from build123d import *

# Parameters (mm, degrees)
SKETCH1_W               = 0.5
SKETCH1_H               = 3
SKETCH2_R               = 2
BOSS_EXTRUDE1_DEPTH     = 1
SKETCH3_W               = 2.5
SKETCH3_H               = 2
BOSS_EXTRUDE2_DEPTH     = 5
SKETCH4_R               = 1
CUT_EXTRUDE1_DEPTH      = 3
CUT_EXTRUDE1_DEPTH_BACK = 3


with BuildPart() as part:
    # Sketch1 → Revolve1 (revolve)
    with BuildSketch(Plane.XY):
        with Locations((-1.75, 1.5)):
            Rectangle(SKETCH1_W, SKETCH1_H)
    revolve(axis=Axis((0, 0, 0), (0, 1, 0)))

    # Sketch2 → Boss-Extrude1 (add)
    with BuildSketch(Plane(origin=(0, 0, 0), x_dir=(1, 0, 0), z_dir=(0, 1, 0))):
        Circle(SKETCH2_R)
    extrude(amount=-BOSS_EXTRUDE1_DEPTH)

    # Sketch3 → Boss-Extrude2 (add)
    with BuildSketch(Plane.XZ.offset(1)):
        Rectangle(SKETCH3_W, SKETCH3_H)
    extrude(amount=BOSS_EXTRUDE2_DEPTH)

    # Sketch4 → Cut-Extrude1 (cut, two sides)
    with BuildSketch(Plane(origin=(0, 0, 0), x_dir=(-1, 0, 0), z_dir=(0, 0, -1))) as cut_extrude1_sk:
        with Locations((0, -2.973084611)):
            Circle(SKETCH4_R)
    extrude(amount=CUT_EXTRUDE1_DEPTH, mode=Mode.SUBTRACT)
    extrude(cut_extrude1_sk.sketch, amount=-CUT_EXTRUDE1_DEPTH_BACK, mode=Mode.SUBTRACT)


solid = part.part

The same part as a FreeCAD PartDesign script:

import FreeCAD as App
import Part
import Sketcher

V = App.Vector


def add_polygon(sketch, points):
    """Adds a closed chain of lines whose ends are joined by coincident constraints."""
    first, n = sketch.GeometryCount, len(points)
    for a, b in zip(points, points[1:] + points[:1]):
        sketch.addGeometry(Part.LineSegment(App.Vector(*a, 0), App.Vector(*b, 0)), False)
    for i in range(n):
        sketch.addConstraint(Sketcher.Constraint("Coincident", first + i, 2, first + (i + 1) % n, 1))

doc = App.newDocument("Part")
params = doc.addObject("Spreadsheet::Sheet", "Params")
for row, (alias, value) in enumerate([
    ("sketch1_height", "3 mm"),
    ("sketch1_width", "0.5 mm"),
    ("revolution_angle", "360 deg"),
    ("sketch2_diameter", "4 mm"),
    ("pad1_length", "1 mm"),
    ("sketch3_height", "2 mm"),
    ("sketch3_width", "2.5 mm"),
    ("pad2_length", "5 mm"),
    ("sketch4_diameter", "2 mm"),
], start=1):
    params.set(f"A{row}", alias)
    params.set(f"B{row}", "=" + value)
    params.setAlias(f"B{row}", alias)

body = doc.addObject("PartDesign::Body", "Body")

# Sketch on XY plane
sketch1 = body.newObject("Sketcher::SketchObject", "Sketch")
sketch1.AttachmentSupport = (doc.getObject("XY_Plane"), [""])
sketch1.MapMode = "FlatFace"
add_polygon(sketch1, [(-2, 3), (-2, 0), (-1.5, 0), (-1.5, 3)])  # lines 0-3
sketch1.addConstraint(Sketcher.Constraint("Vertical", 0))
sketch1.addConstraint(Sketcher.Constraint("Horizontal", 1))
sketch1.addConstraint(Sketcher.Constraint("Vertical", 2))
sketch1.addConstraint(Sketcher.Constraint("Horizontal", 3))
sketch1.addConstraint(Sketcher.Constraint("PointOnObject", 0, 2, -1))
sketch1.addConstraint(Sketcher.Constraint("DistanceY", 0, 2, 0, 1, 3.0))
sketch1.addConstraint(Sketcher.Constraint("DistanceX", 1, 1, 1, 2, 0.5))
sketch1.addConstraint(Sketcher.Constraint("DistanceX", 0, 2, -1, 1, 2.0))
sketch1.setExpression("Constraints[9]", "Params.sketch1_height")
sketch1.setExpression("Constraints[10]", "Params.sketch1_width")
revolution = body.newObject("PartDesign::Revolution", "Revolution")
revolution.Profile = sketch1
revolution.ReferenceAxis = (sketch1, ["V_Axis"])
revolution.setExpression("Angle", "Params.revolution_angle")

# Sketch on XZ plane
sketch2 = body.newObject("Sketcher::SketchObject", "Sketch001")
sketch2.AttachmentSupport = (doc.getObject("XZ_Plane"), [""])
sketch2.MapMode = "FlatFace"
sketch2.addGeometry(Part.Circle(V(0, 0, 0), V(0, 0, 1), 2), False)
sketch2.addConstraint(Sketcher.Constraint("Coincident", 0, 3, -1, 1))
sketch2.addConstraint(Sketcher.Constraint("Diameter", 0, 4.0))
sketch2.setExpression("Constraints[1]", "Params.sketch2_diameter")
pad1 = body.newObject("PartDesign::Pad", "Pad")
pad1.Profile = sketch2
pad1.setExpression("Length", "Params.pad1_length")

# Sketch on XZ plane
sketch3 = body.newObject("Sketcher::SketchObject", "Sketch002")
sketch3.AttachmentSupport = (doc.getObject("XZ_Plane"), [""])
sketch3.MapMode = "FlatFace"
sketch3.AttachmentOffset = App.Placement(V(0, 0, 1), App.Rotation())
add_polygon(sketch3, [(-1.25, 1), (-1.25, -1), (1.25, -1), (1.25, 1)])  # lines 0-3
sketch3.addConstraint(Sketcher.Constraint("Vertical", 0))
sketch3.addConstraint(Sketcher.Constraint("Horizontal", 1))
sketch3.addConstraint(Sketcher.Constraint("Vertical", 2))
sketch3.addConstraint(Sketcher.Constraint("Horizontal", 3))
sketch3.addConstraint(Sketcher.Constraint("Symmetric", 0, 2, 2, 2, -1, 1))
sketch3.addConstraint(Sketcher.Constraint("DistanceY", 0, 2, 0, 1, 2.0))
sketch3.addConstraint(Sketcher.Constraint("DistanceX", 1, 1, 1, 2, 2.5))
sketch3.setExpression("Constraints[9]", "Params.sketch3_height")
sketch3.setExpression("Constraints[10]", "Params.sketch3_width")
pad2 = body.newObject("PartDesign::Pad", "Pad001")
pad2.Profile = sketch3
pad2.setExpression("Length", "Params.pad2_length")

# Sketch on XY plane
sketch4 = body.newObject("Sketcher::SketchObject", "Sketch003")
sketch4.AttachmentSupport = (doc.getObject("XY_Plane"), [""])
sketch4.MapMode = "FlatFace"
sketch4.addGeometry(Part.Circle(V(0, -2.973085, 0), V(0, 0, 1), 1), False)
sketch4.addConstraint(Sketcher.Constraint("PointOnObject", 0, 3, -2))
sketch4.addConstraint(Sketcher.Constraint("Diameter", 0, 2.0))
sketch4.addConstraint(Sketcher.Constraint("DistanceY", 0, 3, -1, 1, 2.973085))
sketch4.setExpression("Constraints[1]", "Params.sketch4_diameter")
pocket1 = body.newObject("PartDesign::Pocket", "Pocket")
pocket1.Profile = sketch4
pocket1.Type = "ThroughAll"
pocket1.Midplane = True

doc.recompute()
